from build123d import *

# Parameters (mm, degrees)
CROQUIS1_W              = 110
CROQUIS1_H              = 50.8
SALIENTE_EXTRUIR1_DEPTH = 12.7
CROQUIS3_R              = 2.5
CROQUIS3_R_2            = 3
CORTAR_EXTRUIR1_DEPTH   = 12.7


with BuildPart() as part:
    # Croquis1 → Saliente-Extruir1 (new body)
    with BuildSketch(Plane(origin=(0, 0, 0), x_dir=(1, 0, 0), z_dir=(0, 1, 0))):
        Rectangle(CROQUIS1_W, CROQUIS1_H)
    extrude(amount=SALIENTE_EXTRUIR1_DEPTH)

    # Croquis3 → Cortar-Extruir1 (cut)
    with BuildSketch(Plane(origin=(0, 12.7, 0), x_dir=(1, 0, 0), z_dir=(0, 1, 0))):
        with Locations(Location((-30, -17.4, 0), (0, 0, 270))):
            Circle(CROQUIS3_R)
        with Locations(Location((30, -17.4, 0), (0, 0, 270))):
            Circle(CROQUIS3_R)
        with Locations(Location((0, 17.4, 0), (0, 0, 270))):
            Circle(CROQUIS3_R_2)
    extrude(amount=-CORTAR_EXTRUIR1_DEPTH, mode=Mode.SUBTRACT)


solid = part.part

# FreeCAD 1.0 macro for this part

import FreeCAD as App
import Part
import Sketcher
from FreeCAD import Vector


def add_polygon(sketch, points):
    """Adds a closed chain of lines whose ends are joined by coincident constraints."""
    first, n = sketch.GeometryCount, len(points)
    for a, b in zip(points, points[1:] + points[:1]):
        sketch.addGeometry(Part.LineSegment(App.Vector(*a, 0), App.Vector(*b, 0)), False)
    for i in range(n):
        sketch.addConstraint(Sketcher.Constraint("Coincident", first + i, 2, first + (i + 1) % n, 1))

doc = App.newDocument("Part")
body = doc.addObject("PartDesign::Body", "Body")

sketch1 = doc.addObject("Sketcher::SketchObject", "Sketch")
body.addObject(sketch1)
sketch1.AttachmentSupport = (doc.XZ_Plane, [""])
sketch1.MapMode = "FlatFace"
add_polygon(sketch1, [(-55, -25), (-55, 25), (55, 25), (55, -25)])
sketch1.addConstraint([
    Sketcher.Constraint("Vertical", 0),
    Sketcher.Constraint("Horizontal", 1),
    Sketcher.Constraint("Vertical", 2),
    Sketcher.Constraint("Horizontal", 3),
    Sketcher.Constraint("Symmetric", 0, 2, 2, 2, -1, 1),
    Sketcher.Constraint("DistanceX", 1, 1, 1, 2, 110.0),
    Sketcher.Constraint("DistanceY", 0, 1, 0, 2, 50.8),
])
pad1 = doc.addObject("PartDesign::Pad", "Pad")
body.addObject(pad1)
pad1.Profile = sketch1
pad1.Length = 12.7
pad1.Reversed = True

sketch2 = doc.addObject("Sketcher::SketchObject", "Sketch001")
body.addObject(sketch2)
sketch2.AttachmentSupport = (doc.XZ_Plane, [""])
sketch2.MapMode = "FlatFace"
sketch2.AttachmentOffset = App.Placement(Vector(0, 0, -12.7), App.Rotation())
sketch2.addGeometry([
    Part.Circle(Vector(-30, 17.4, 0), Vector(0, 0, 1), 2.5),
    Part.Circle(Vector(30, 17.4, 0), Vector(0, 0, 1), 2.5),
    Part.Circle(Vector(0, -17.4, 0), Vector(0, 0, 1), 3),
], False)
sketch2.addConstraint([
    Sketcher.Constraint("Equal", 0, 1),
    Sketcher.Constraint("Symmetric", 0, 3, 1, 3, -2),
    Sketcher.Constraint("PointOnObject", 2, 3, -2),
    Sketcher.Constraint("Diameter", 0, 5.0),
    Sketcher.Constraint("Diameter", 2, 6.0),
    Sketcher.Constraint("DistanceX", 0, 3, -1, 1, 30.0),
    Sketcher.Constraint("DistanceY", -1, 1, 0, 3, 17.4),
    Sketcher.Constraint("DistanceY", 2, 3, -1, 1, 17.4),
])
pocket1 = doc.addObject("PartDesign::Pocket", "Pocket")
body.addObject(pocket1)
pocket1.Profile = sketch2
pocket1.Length = 12.7
pocket1.Reversed = True

doc.recompute()
